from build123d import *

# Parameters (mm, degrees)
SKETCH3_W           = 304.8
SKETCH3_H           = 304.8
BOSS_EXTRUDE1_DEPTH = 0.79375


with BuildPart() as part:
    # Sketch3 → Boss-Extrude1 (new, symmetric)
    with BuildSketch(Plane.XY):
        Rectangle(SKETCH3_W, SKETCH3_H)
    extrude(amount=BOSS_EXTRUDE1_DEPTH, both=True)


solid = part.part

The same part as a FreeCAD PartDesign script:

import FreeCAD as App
import Part
import Sketcher
from FreeCAD import Vector
Q = App.Units.Quantity


def add_polygon(sketch, points):
    """Adds a closed chain of lines whose ends are joined by coincident constraints."""
    first, n = sketch.GeometryCount, len(points)
    for a, b in zip(points, points[1:] + points[:1]):
        sketch.addGeometry(Part.LineSegment(App.Vector(*a, 0), App.Vector(*b, 0)), False)
    for i in range(n):
        sketch.addConstraint(Sketcher.Constraint("Coincident", first + i, 2, first + (i + 1) % n, 1))

doc = App.newDocument("Part")
body = doc.addObject("PartDesign::Body", "Body")

# Sketch on XY plane
sketch1 = body.newObject("Sketcher::SketchObject", "Sketch")
sketch1.AttachmentSupport = (doc.getObject("XY_Plane"), [""])
sketch1.MapMode = "FlatFace"
add_polygon(sketch1, [(-152, 152), (-152, -152), (152, -152), (152, 152)])  # lines 0-3
sketch1.addConstraint(Sketcher.Constraint("Vertical", 0))
sketch1.addConstraint(Sketcher.Constraint("Horizontal", 1))
sketch1.addConstraint(Sketcher.Constraint("Vertical", 2))
sketch1.addConstraint(Sketcher.Constraint("Horizontal", 3))
sketch1.addConstraint(Sketcher.Constraint("Symmetric", 0, 2, 2, 2, -1, 1))
sketch1.addConstraint(Sketcher.Constraint("Equal", 3, 0))
sketch1.addConstraint(Sketcher.Constraint("DistanceX", 1, 1, 1, 2, Q("12 in")))
pad1 = body.newObject("PartDesign::Pad", "Pad")
pad1.Profile = sketch1
pad1.Length = Q("0.0625 in")
pad1.Midplane = True

doc.recompute()
